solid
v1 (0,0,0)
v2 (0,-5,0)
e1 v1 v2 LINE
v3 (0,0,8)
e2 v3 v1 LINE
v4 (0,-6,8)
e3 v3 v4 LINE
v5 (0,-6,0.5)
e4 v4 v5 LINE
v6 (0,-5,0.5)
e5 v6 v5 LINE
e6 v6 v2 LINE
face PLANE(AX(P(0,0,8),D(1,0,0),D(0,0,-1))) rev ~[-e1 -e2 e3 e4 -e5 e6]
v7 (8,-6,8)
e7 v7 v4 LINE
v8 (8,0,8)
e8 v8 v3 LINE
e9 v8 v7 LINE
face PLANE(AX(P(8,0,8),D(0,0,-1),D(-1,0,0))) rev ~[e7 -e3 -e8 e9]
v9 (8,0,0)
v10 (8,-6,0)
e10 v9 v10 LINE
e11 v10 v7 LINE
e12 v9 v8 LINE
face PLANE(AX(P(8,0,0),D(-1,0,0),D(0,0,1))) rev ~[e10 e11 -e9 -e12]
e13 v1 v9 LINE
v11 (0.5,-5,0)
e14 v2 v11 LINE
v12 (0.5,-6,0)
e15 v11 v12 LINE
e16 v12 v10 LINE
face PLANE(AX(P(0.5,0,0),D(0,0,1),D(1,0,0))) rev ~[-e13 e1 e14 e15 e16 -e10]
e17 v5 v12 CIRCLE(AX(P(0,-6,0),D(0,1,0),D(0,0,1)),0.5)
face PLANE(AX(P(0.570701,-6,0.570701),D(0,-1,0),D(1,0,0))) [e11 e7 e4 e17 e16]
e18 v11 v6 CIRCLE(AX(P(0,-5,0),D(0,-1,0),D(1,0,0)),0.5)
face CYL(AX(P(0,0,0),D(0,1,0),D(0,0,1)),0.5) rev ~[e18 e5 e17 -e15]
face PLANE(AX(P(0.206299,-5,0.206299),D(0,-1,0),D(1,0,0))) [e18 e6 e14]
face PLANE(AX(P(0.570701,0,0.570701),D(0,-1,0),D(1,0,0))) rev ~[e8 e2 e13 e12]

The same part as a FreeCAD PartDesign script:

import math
import FreeCAD as App
import Part
import Sketcher

V = App.Vector

doc = App.newDocument("Part")
body = doc.addObject("PartDesign::Body", "Body")

# Sketch on XZ plane
sketch1 = doc.addObject("Sketcher::SketchObject", "Sketch")
body.addObject(sketch1)
sketch1.AttachmentSupport = (doc.XZ_Plane, [""])
sketch1.MapMode = "FlatFace"
sketch1.addGeometry([
    Part.LineSegment(V(0, 0.5, 0), V(0, 0, 0)),
    Part.LineSegment(V(0, 0, 0), V(0.5, 0, 0)),
    Part.ArcOfCircle(Part.Circle(V(0, 0, 0), V(0, 0, 1), 0.5), math.radians(0), math.radians(90)),
], False)
sketch1.addConstraint([
    Sketcher.Constraint("Coincident", 0, 2, 1, 1),
    Sketcher.Constraint("Coincident", 1, 2, 2, 1),
    Sketcher.Constraint("Coincident", 2, 2, 0, 1),
    Sketcher.Constraint("Vertical", 0),
    Sketcher.Constraint("Horizontal", 1),
    Sketcher.Constraint("Coincident", 2, 3, -1, 1),
    Sketcher.Constraint("Coincident", 0, 2, -1, 1),
    Sketcher.Constraint("Radius", 2, 0.5),
])
pad1 = doc.addObject("PartDesign::Pad", "Pad")
body.addObject(pad1)
pad1.Profile = sketch1
pad1.Length = 5

# Sketch on XZ plane
sketch2 = doc.addObject("Sketcher::SketchObject", "Sketch001")
body.addObject(sketch2)
sketch2.AttachmentSupport = (doc.XZ_Plane, [""])
sketch2.MapMode = "FlatFace"
sketch2.addGeometry([
    Part.ArcOfCircle(Part.Circle(V(0, 0, 0), V(0, 0, 1), 0.5), math.radians(0), math.radians(90)),  # 0
    Part.LineSegment(V(0.5, 0, 0), V(8, 0, 0)),  # 1
    Part.LineSegment(V(8, 0, 0), V(8, 8, 0)),  # 2
    Part.LineSegment(V(8, 8, 0), V(0, 8, 0)),  # 3
    Part.LineSegment(V(0, 8, 0), V(0, 0.5, 0)),  # 4
], False)
sketch2.addConstraint([
    Sketcher.Constraint("Coincident", 0, 1, 1, 1),
    Sketcher.Constraint("Coincident", 1, 2, 2, 1),
    Sketcher.Constraint("Coincident", 2, 2, 3, 1),
    Sketcher.Constraint("Coincident", 3, 2, 4, 1),
    Sketcher.Constraint("Coincident", 4, 2, 0, 2),
    Sketcher.Constraint("Horizontal", 1),
    Sketcher.Constraint("Vertical", 2),
    Sketcher.Constraint("Horizontal", 3),
    Sketcher.Constraint("Vertical", 4),
    Sketcher.Constraint("Coincident", 0, 3, -1, 1),
    Sketcher.Constraint("PointOnObject", 0, 1, -1),
    Sketcher.Constraint("PointOnObject", 3, 2, -2),
    Sketcher.Constraint("Equal", 3, 2),
    Sketcher.Constraint("Radius", 0, 0.5),
    Sketcher.Constraint("DistanceX", 3, 2, 3, 1, 8.0),
])
pad2 = doc.addObject("PartDesign::Pad", "Pad001")
body.addObject(pad2)
pad2.Profile = sketch2
pad2.Length = 6

doc.recompute()
